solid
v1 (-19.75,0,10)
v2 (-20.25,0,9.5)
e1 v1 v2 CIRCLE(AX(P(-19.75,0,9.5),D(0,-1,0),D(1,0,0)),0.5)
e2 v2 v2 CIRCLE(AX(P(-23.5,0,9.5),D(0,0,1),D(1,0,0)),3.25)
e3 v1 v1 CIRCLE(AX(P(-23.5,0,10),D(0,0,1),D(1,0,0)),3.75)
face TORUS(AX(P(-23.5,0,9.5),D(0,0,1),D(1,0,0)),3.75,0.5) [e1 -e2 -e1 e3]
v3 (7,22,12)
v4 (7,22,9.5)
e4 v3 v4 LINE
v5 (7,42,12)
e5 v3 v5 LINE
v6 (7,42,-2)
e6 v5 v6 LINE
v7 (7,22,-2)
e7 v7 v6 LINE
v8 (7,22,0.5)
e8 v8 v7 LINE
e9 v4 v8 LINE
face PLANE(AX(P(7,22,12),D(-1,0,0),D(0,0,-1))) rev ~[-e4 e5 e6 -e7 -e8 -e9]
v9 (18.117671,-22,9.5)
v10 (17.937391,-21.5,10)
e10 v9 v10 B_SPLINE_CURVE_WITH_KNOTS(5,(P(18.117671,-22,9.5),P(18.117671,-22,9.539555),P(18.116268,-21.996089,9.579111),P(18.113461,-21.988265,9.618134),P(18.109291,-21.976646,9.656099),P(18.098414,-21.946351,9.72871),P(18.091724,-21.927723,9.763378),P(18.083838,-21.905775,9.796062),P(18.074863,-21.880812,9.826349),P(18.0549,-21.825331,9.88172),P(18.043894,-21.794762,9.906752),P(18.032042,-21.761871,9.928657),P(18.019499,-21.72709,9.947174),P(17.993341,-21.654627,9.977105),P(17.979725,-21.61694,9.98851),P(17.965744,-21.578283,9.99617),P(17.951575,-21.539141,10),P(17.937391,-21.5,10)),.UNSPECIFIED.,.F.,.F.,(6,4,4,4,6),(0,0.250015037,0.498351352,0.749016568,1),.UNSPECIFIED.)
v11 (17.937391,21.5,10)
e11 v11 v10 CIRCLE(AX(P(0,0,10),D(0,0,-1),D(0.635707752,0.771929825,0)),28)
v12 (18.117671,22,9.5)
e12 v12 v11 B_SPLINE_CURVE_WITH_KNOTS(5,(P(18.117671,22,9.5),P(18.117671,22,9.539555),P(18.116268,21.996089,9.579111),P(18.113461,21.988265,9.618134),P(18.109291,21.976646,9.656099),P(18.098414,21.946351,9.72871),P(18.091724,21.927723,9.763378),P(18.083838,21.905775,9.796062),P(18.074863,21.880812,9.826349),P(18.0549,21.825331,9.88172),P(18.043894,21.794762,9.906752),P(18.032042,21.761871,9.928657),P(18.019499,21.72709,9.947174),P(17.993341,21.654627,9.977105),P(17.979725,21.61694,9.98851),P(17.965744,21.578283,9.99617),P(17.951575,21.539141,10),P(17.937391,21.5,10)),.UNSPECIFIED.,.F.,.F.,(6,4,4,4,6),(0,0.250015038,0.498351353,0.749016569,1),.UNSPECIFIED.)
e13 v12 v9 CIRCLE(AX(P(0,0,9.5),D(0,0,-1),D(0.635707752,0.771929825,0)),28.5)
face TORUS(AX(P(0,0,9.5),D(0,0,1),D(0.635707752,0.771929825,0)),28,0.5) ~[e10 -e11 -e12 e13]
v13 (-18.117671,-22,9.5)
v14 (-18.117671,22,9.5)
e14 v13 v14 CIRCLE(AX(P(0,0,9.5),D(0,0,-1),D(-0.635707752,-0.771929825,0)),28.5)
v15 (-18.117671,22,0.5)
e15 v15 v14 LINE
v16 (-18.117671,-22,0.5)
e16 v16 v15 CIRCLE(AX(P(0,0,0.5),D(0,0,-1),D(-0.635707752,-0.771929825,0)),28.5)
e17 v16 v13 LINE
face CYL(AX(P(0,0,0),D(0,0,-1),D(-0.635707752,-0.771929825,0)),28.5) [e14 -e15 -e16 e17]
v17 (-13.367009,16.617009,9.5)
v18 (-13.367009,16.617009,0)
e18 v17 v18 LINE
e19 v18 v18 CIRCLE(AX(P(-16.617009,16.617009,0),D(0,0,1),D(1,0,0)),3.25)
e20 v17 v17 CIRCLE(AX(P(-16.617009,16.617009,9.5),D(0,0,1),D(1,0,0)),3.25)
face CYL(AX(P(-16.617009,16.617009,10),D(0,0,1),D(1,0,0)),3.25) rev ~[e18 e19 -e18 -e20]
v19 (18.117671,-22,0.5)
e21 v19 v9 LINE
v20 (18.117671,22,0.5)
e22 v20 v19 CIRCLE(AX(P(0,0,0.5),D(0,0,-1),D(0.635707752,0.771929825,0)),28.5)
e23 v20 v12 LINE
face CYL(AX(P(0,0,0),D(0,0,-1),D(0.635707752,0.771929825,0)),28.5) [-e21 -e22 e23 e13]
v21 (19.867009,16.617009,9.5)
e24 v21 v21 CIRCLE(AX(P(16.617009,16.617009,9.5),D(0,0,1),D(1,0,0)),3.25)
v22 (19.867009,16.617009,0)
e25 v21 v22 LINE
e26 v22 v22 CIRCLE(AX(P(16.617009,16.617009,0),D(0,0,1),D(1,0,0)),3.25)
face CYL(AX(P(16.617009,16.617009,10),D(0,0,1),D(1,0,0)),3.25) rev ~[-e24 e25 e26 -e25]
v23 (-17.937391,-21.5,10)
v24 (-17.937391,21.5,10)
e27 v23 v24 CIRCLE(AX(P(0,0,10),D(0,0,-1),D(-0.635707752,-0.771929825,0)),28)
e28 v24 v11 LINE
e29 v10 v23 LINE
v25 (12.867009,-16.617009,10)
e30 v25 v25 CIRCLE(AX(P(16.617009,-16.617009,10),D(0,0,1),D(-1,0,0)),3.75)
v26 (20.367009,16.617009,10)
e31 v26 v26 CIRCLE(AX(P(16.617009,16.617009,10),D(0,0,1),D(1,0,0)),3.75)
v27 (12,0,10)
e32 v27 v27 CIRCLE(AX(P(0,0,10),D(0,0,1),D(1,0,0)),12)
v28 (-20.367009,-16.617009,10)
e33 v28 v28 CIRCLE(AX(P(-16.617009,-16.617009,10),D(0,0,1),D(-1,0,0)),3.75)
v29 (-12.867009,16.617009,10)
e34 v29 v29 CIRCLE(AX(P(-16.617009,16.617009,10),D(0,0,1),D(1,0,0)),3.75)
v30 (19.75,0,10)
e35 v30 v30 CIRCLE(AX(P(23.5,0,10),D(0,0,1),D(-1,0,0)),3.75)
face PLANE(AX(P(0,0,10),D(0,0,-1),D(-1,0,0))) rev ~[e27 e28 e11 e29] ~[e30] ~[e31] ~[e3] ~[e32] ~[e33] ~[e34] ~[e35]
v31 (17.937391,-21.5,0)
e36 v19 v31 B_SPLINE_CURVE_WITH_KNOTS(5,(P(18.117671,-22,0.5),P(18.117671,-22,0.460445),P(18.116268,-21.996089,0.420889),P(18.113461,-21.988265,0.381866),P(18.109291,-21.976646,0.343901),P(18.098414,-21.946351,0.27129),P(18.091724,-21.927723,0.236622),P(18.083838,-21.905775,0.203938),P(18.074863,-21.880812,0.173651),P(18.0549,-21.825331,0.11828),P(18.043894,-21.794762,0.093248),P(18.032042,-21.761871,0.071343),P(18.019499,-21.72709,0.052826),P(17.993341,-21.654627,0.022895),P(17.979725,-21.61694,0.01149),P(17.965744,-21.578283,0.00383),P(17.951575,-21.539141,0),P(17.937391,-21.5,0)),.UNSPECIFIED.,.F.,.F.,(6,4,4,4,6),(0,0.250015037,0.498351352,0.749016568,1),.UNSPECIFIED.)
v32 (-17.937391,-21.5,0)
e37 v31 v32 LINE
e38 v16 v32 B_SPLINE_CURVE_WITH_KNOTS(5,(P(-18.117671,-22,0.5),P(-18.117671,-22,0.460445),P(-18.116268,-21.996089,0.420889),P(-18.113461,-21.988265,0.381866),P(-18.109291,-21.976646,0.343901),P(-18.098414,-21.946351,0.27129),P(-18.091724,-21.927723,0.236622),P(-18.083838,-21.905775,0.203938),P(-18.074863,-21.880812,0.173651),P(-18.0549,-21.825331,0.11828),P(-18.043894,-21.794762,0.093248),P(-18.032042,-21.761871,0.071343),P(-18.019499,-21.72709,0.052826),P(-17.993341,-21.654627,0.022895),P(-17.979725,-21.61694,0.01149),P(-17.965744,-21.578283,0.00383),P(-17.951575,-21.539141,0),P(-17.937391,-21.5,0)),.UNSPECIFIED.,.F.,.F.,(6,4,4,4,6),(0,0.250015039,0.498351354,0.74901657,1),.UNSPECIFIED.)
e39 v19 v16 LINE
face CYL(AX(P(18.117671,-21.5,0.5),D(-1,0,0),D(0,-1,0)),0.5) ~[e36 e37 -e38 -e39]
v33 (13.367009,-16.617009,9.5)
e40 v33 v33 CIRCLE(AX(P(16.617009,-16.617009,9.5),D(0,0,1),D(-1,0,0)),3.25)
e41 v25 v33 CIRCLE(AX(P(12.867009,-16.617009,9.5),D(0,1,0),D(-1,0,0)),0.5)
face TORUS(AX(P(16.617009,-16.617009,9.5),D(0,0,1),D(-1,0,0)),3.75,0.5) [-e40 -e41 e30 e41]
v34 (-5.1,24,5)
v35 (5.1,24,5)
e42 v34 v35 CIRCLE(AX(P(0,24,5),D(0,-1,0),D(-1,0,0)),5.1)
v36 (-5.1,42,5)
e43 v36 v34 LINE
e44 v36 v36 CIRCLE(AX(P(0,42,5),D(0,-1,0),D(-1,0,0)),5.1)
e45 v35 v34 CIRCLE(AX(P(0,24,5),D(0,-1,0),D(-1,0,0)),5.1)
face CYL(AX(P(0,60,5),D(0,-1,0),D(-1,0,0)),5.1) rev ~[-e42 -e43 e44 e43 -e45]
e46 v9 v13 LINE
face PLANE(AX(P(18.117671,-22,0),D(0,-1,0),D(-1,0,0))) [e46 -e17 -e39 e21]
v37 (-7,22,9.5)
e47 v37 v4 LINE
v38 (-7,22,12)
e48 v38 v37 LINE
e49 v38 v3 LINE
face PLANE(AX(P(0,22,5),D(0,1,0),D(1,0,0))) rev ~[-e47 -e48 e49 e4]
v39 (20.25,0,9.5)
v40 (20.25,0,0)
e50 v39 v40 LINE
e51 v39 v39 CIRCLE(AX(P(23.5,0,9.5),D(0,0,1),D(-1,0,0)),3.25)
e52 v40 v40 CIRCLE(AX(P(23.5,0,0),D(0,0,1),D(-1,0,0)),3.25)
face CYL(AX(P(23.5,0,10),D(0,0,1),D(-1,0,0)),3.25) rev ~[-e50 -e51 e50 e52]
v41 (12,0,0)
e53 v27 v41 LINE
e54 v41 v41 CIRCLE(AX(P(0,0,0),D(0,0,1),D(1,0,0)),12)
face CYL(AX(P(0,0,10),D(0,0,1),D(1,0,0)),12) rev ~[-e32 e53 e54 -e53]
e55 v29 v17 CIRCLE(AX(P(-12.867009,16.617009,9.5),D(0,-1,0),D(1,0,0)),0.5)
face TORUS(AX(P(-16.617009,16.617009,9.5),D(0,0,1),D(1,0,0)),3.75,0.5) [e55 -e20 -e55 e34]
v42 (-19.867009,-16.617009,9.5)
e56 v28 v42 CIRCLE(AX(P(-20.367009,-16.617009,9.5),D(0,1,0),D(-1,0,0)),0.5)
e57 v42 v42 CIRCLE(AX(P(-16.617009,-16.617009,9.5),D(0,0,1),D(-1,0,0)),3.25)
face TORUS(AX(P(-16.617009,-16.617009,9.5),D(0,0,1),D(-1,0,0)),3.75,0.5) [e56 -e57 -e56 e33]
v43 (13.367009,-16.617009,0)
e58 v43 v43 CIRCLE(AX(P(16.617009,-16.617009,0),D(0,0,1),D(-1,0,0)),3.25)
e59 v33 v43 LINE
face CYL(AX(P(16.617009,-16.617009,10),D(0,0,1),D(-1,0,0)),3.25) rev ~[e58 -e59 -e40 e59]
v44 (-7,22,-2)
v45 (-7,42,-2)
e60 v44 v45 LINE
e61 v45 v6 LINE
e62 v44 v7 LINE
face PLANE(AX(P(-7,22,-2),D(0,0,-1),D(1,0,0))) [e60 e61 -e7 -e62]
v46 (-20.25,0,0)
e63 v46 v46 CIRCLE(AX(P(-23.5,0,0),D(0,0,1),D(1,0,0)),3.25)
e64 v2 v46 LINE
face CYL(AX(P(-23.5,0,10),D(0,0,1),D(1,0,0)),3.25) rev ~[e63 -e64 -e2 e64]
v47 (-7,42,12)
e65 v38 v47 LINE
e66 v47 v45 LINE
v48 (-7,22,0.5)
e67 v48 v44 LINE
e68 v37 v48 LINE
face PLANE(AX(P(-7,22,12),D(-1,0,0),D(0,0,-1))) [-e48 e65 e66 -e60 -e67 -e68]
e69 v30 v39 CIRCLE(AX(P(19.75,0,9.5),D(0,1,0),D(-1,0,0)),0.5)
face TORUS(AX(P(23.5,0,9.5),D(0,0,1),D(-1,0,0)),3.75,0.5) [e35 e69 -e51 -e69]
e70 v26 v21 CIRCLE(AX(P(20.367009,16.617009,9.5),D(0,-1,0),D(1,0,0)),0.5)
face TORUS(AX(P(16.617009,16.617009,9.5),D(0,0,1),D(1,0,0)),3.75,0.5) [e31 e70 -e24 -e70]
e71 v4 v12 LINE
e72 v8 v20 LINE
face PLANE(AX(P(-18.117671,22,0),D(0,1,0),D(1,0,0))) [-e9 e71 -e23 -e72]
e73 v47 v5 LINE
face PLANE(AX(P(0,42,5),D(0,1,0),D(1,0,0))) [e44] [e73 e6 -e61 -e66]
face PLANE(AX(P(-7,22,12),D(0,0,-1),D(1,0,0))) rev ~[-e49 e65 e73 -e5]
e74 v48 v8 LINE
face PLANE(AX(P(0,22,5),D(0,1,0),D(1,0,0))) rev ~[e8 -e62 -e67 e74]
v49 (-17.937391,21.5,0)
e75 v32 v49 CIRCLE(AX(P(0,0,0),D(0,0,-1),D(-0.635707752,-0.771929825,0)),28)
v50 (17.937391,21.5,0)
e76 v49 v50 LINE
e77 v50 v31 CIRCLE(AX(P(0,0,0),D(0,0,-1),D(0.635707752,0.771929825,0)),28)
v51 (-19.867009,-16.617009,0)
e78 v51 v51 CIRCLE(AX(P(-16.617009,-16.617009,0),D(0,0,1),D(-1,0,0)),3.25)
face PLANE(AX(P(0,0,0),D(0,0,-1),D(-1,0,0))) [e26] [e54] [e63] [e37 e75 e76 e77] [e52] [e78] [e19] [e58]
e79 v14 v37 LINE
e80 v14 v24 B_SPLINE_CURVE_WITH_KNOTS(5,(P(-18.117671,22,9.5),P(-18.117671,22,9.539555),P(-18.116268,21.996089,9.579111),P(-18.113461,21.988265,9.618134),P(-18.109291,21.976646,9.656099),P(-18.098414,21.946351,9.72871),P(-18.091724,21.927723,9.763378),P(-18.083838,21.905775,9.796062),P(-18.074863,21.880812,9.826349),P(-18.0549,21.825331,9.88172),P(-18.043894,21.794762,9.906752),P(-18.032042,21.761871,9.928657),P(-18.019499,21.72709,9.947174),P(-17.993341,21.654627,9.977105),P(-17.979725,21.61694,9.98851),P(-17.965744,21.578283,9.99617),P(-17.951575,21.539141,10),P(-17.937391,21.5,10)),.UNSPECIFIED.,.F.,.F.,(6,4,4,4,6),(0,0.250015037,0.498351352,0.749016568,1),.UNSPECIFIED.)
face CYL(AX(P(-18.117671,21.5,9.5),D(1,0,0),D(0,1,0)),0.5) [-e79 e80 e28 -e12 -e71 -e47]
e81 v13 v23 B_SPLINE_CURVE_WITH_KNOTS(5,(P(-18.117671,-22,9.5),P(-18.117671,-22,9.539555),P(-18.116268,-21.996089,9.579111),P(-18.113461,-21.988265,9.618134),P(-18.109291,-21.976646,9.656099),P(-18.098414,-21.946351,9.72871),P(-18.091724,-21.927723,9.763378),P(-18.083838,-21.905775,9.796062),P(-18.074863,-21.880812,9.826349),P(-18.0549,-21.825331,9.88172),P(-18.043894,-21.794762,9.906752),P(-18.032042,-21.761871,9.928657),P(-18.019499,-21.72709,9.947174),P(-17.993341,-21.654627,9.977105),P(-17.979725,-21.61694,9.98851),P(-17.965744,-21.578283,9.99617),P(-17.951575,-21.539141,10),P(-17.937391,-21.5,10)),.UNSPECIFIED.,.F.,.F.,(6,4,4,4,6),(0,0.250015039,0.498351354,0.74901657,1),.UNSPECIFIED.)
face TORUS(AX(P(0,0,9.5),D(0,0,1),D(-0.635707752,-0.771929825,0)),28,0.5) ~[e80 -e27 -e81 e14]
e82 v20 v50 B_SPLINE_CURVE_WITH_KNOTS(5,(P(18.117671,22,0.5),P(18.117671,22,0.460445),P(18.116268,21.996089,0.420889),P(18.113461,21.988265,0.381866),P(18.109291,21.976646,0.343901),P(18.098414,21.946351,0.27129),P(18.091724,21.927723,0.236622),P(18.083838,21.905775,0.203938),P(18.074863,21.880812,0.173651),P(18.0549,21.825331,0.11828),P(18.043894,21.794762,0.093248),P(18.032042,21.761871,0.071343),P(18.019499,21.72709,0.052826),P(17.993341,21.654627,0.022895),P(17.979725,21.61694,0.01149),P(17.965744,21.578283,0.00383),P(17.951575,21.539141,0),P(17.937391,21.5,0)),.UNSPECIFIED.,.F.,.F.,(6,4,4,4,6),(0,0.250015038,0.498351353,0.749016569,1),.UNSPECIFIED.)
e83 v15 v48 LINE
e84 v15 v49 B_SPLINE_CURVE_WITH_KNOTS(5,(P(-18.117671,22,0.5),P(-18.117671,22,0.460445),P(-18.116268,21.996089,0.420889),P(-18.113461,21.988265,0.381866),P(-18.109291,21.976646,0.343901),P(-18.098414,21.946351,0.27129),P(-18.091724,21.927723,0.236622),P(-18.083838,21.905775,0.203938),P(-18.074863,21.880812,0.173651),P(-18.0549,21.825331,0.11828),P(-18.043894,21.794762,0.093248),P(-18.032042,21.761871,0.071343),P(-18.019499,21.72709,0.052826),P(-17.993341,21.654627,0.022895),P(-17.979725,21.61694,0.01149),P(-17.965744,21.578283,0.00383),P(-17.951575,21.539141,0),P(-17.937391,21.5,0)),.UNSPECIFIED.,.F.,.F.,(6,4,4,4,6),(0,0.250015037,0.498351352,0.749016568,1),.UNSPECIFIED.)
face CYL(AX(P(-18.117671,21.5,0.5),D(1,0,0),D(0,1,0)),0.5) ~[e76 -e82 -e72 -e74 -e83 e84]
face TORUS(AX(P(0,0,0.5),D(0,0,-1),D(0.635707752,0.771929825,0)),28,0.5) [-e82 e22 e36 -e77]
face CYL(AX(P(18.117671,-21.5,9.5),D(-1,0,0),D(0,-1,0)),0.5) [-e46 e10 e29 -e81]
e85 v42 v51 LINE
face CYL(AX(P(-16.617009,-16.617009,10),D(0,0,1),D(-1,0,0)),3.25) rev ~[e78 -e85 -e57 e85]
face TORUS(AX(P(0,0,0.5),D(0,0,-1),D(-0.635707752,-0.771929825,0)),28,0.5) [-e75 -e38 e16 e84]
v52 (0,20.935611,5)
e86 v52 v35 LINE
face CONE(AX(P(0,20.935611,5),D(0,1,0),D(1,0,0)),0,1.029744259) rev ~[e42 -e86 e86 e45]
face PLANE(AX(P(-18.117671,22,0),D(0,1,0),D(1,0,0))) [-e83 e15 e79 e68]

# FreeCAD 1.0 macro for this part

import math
import FreeCAD as App
import Part
import Sketcher

V = App.Vector
Q = App.Units.Quantity


def edges_at(feature, points):
    """Names of the edges that pass closest to the given points."""
    edges = feature.Shape.Edges
    near = lambda p: min(range(len(edges)), key=lambda i: edges[i].distToShape(Part.Vertex(*p))[0])
    return sorted({f"Edge{near(p) + 1}" for p in points})

doc = App.newDocument("Part")
body = doc.addObject("PartDesign::Body", "Body")

# Sketch on XY plane
sketch1 = doc.addObject("Sketcher::SketchObject", "Sketch")
body.addObject(sketch1)
sketch1.AttachmentSupport = (doc.XY_Plane, [""])
sketch1.MapMode = "FlatFace"
sketch1.addGeometry(Part.LineSegment(V(18, 22, 0), V(-18, 22, 0)), False)
sketch1.addGeometry(Part.ArcOfCircle(Part.Circle(V(0, 0, 0), V(0, 0, 1), 28), math.radians(129), math.radians(231)), False)
sketch1.addGeometry(Part.LineSegment(V(-18, -22, 0), V(18, -22, 0)), False)
sketch1.addGeometry(Part.ArcOfCircle(Part.Circle(V(0, 0, 0), V(0, 0, 1), 28), math.radians(-51), math.radians(51)), False)
sketch1.addConstraint(Sketcher.Constraint("Coincident", 0, 2, 1, 1))
sketch1.addConstraint(Sketcher.Constraint("Coincident", 1, 2, 2, 1))
sketch1.addConstraint(Sketcher.Constraint("Coincident", 2, 2, 3, 1))
sketch1.addConstraint(Sketcher.Constraint("Coincident", 3, 2, 0, 1))
sketch1.addConstraint(Sketcher.Constraint("Horizontal", 0))
sketch1.addConstraint(Sketcher.Constraint("Horizontal", 2))
sketch1.addConstraint(Sketcher.Constraint("Coincident", 1, 3, -1, 1))
sketch1.addConstraint(Sketcher.Constraint("Coincident", 3, 3, -1, 1))
sketch1.addConstraint(Sketcher.Constraint("Equal", 1, 3))
sketch1.addConstraint(Sketcher.Constraint("Vertical", 0, 2, 1, 2))
sketch1.addConstraint(Sketcher.Constraint("Radius", 1, Q("28.5 mm")))
sketch1.addConstraint(Sketcher.Constraint("DistanceY", -1, 1, 0, 2, Q("22 mm")))
pad1 = doc.addObject("PartDesign::Pad", "Pad")
body.addObject(pad1)
pad1.Profile = sketch1
pad1.Length = 10
doc.recompute()

fillet = doc.addObject("PartDesign::Fillet", "Fillet")
body.addObject(fillet)
fillet.Base = (pad1, edges_at(pad1, [
    (28.5, 0, 10),
    (0, 22, 10),
    (-28.5, 0, 10),
    (0, 22, 0),
    (28.5, 0, 0),
    (0, -22, 0),
    (-28.5, 0, 0),
    (0, -22, 10),
]))
fillet.Radius = 0.5

# Sketch on XY plane
sketch2 = doc.addObject("Sketcher::SketchObject", "Sketch001")
body.addObject(sketch2)
sketch2.AttachmentSupport = (doc.XY_Plane, [""])
sketch2.MapMode = "FlatFace"
sketch2.AttachmentOffset = App.Placement(V(0, 0, 10), App.Rotation())
sketch2.addGeometry(Part.Circle(V(0, 0, 0), V(0, 0, 1), 12), False)
sketch2.addGeometry(Part.Circle(V(-23.5, 0, 0), V(0, 0, 1), 3.2), False)
sketch2.addGeometry(Part.Circle(V(23.5, 0, 0), V(0, 0, 1), 3.2), False)
sketch2.addGeometry(Part.Circle(V(-16.6, 16.6, 0), V(0, 0, 1), 3.2), False)
sketch2.addGeometry(Part.Circle(V(16.6, -16.6, 0), V(0, 0, 1), 3.2), False)
sketch2.addGeometry(Part.Circle(V(16.6, 16.6, 0), V(0, 0, 1), 3.2), False)
sketch2.addGeometry(Part.Circle(V(-16.6, -16.6, 0), V(0, 0, 1), 3.2), False)
sketch2.addConstraint(Sketcher.Constraint("Coincident", 0, 3, -1, 1))
sketch2.addConstraint(Sketcher.Constraint("Equal", 1, 2))
sketch2.addConstraint(Sketcher.Constraint("Equal", 2, 3))
sketch2.addConstraint(Sketcher.Constraint("Equal", 3, 4))
sketch2.addConstraint(Sketcher.Constraint("Equal", 4, 5))
sketch2.addConstraint(Sketcher.Constraint("Equal", 5, 6))
sketch2.addConstraint(Sketcher.Constraint("Symmetric", 1, 3, 2, 3, -1, 1))
sketch2.addConstraint(Sketcher.Constraint("Symmetric", 3, 3, 4, 3, -1, 1))
sketch2.addConstraint(Sketcher.Constraint("Symmetric", 5, 3, 6, 3, -1, 1))
sketch2.addConstraint(Sketcher.Constraint("Symmetric", 3, 3, 5, 3, -2))
sketch2.addConstraint(Sketcher.Constraint("PointOnObject", 1, 3, -1))
sketch2.addConstraint(Sketcher.Constraint("Diameter", 0, Q("24 mm")))
sketch2.addConstraint(Sketcher.Constraint("Diameter", 1, Q("6.5 mm")))
sketch2.addConstraint(Sketcher.Constraint("DistanceX", 1, 3, 2, 3, Q("47 mm")))
sketch2.addConstraint(Sketcher.Constraint("DistanceX", 3, 3, -1, 1, Q("16.617009 mm")))
sketch2.addConstraint(Sketcher.Constraint("DistanceY", -1, 1, 3, 3, Q("16.617009 mm")))
pocket1 = doc.addObject("PartDesign::Pocket", "Pocket")
body.addObject(pocket1)
pocket1.Profile = sketch2
pocket1.Length = 10
doc.recompute()

fillet2 = doc.addObject("PartDesign::Fillet", "Fillet001")
body.addObject(fillet2)
fillet2.Base = (pocket1, edges_at(pocket1, [
    (19.867, -16.617, 10),
    (-19.867, 16.617, 10),
    (26.75, 0, 10),
    (-26.75, 0, 10),
    (13.367, 16.617, 10),
    (-13.367, -16.617, 10),
]))
fillet2.Radius = 0.5

# Sketch on XZ plane
sketch3 = doc.addObject("Sketcher::SketchObject", "Sketch002")
body.addObject(sketch3)
sketch3.AttachmentSupport = (doc.XZ_Plane, [""])
sketch3.MapMode = "FlatFace"
sketch3.AttachmentOffset = App.Placement(V(0, 0, -22), App.Rotation())
sketch3.addGeometry(Part.LineSegment(V(-7, -2, 0), V(-7, 12, 0)), False)
sketch3.addGeometry(Part.LineSegment(V(-7, 12, 0), V(7, 12, 0)), False)
sketch3.addGeometry(Part.LineSegment(V(7, 12, 0), V(7, -2, 0)), False)
sketch3.addGeometry(Part.LineSegment(V(7, -2, 0), V(-7, -2, 0)), False)
sketch3.addConstraint(Sketcher.Constraint("Coincident", 0, 2, 1, 1))
sketch3.addConstraint(Sketcher.Constraint("Coincident", 1, 2, 2, 1))
sketch3.addConstraint(Sketcher.Constraint("Coincident", 2, 2, 3, 1))
sketch3.addConstraint(Sketcher.Constraint("Coincident", 3, 2, 0, 1))
sketch3.addConstraint(Sketcher.Constraint("Vertical", 0))
sketch3.addConstraint(Sketcher.Constraint("Horizontal", 1))
sketch3.addConstraint(Sketcher.Constraint("Vertical", 2))
sketch3.addConstraint(Sketcher.Constraint("Horizontal", 3))
sketch3.addConstraint(Sketcher.Constraint("Equal", 3, 0))
sketch3.addConstraint(Sketcher.Constraint("DistanceX", 1, 1, 1, 2, Q("14 mm")))
sketch3.addConstraint(Sketcher.Constraint("DistanceX", 0, 2, -1, 1, Q("7 mm")))
sketch3.addConstraint(Sketcher.Constraint("DistanceY", -1, 1, 0, 2, Q("12 mm")))
pad2 = doc.addObject("PartDesign::Pad", "Pad001")
body.addObject(pad2)
pad2.Profile = sketch3
pad2.Length = 20
pad2.Reversed = True

# Sketch on XZ plane
sketch4 = doc.addObject("Sketcher::SketchObject", "Sketch003")
body.addObject(sketch4)
sketch4.AttachmentSupport = (doc.XZ_Plane, [""])
sketch4.MapMode = "FlatFace"
sketch4.AttachmentOffset = App.Placement(V(0, 0, -42), App.Rotation())
sketch4.addGeometry(Part.Circle(V(0, 5, 0), V(0, 0, 1), 5), False)
sketch4.addConstraint(Sketcher.Constraint("PointOnObject", 0, 3, -2))
sketch4.addConstraint(Sketcher.Constraint("Diameter", 0, Q("10.2 mm")))
sketch4.addConstraint(Sketcher.Constraint("DistanceY", -1, 1, 0, 3, Q("5 mm")))
doc.recompute()
hole = doc.addObject("PartDesign::Hole", "Hole")
body.addObject(hole)
hole.Profile = sketch4
hole.ThreadType = "None"
hole.Diameter = 10.2
hole.DepthType = "Dimension"
hole.Depth = 18
hole.DrillPoint = "Angled"
hole.DrillPointAngle = 118
hole.Reversed = True

doc.recompute()
